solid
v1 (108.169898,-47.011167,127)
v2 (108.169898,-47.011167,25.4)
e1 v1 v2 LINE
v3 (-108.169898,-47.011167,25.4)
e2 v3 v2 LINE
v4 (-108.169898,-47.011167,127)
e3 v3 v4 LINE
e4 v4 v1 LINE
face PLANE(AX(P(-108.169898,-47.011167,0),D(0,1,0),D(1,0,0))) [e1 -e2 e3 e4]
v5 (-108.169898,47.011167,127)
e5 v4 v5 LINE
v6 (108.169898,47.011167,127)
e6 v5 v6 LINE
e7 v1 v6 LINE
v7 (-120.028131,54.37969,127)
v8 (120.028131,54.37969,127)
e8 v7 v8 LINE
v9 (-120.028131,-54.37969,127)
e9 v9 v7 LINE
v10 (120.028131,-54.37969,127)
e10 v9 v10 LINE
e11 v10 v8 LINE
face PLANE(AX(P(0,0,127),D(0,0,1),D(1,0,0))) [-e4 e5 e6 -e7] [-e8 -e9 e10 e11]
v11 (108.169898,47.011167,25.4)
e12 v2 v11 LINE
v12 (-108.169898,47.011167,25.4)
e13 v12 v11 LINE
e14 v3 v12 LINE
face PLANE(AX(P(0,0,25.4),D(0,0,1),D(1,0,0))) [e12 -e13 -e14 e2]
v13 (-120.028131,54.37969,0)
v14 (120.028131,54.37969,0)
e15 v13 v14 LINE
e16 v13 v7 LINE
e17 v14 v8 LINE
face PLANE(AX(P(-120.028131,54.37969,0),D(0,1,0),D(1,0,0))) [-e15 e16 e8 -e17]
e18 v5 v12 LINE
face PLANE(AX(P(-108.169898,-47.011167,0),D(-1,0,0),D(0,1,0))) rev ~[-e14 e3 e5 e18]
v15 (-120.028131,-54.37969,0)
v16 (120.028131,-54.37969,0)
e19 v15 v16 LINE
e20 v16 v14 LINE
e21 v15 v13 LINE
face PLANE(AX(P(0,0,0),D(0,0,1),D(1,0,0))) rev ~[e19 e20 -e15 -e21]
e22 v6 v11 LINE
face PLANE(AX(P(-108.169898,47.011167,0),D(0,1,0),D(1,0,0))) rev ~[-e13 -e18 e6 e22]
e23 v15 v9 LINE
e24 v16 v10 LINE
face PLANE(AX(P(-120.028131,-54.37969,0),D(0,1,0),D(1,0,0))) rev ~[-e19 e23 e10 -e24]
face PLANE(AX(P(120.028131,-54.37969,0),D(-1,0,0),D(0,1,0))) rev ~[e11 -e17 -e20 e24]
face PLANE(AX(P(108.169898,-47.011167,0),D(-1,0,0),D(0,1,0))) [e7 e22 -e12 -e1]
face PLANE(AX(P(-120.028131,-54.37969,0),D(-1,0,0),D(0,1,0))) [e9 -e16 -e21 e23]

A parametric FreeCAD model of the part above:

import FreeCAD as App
import Part
import Sketcher
from FreeCAD import Vector
Q = App.Units.Quantity

doc = App.newDocument("Part")
body = doc.addObject("PartDesign::Body", "Body")

# Sketch on XY plane
sketch1 = doc.addObject("Sketcher::SketchObject", "Sketch")
body.addObject(sketch1)
sketch1.AttachmentSupport = (doc.XY_Plane, [""])
sketch1.MapMode = "FlatFace"
sketch1.addGeometry([
    Part.LineSegment(Vector(-108.169898, 47.011167, 0), Vector(-108.169898, -47.011167, 0)),
    Part.LineSegment(Vector(-108.169898, -47.011167, 0), Vector(108.169898, -47.011167, 0)),
    Part.LineSegment(Vector(108.169898, -47.011167, 0), Vector(108.169898, 47.011167, 0)),
    Part.LineSegment(Vector(108.169898, 47.011167, 0), Vector(-108.169898, 47.011167, 0)),
], False)
sketch1.addConstraint([
    Sketcher.Constraint("Coincident", 0, 2, 1, 1),
    Sketcher.Constraint("Coincident", 1, 2, 2, 1),
    Sketcher.Constraint("Coincident", 2, 2, 3, 1),
    Sketcher.Constraint("Coincident", 3, 2, 0, 1),
    Sketcher.Constraint("Vertical", 0),
    Sketcher.Constraint("Horizontal", 1),
    Sketcher.Constraint("Vertical", 2),
    Sketcher.Constraint("Horizontal", 3),
    Sketcher.Constraint("Symmetric", 0, 2, 2, 2, -1, 1),
    Sketcher.Constraint("DistanceX", 0, 2, -1, 1, 108.169898),
    Sketcher.Constraint("DistanceY", 0, 2, 0, 1, 94.022334),
])
pad1 = doc.addObject("PartDesign::Pad", "Pad")
body.addObject(pad1)
pad1.Profile = sketch1
pad1.Length = Q("1 in")

# Sketch on XY plane
sketch2 = doc.addObject("Sketcher::SketchObject", "Sketch001")
body.addObject(sketch2)
sketch2.AttachmentSupport = (doc.XY_Plane, [""])
sketch2.MapMode = "FlatFace"
sketch2.addGeometry([
    Part.LineSegment(Vector(-115.593374, 51.137537, 0), Vector(-115.593374, -51.137537, 0)),  # 0
    Part.LineSegment(Vector(-115.593374, -51.137537, 0), Vector(115.593374, -51.137537, 0)),  # 1
    Part.LineSegment(Vector(115.593374, -51.137537, 0), Vector(115.593374, 51.137537, 0)),  # 2
    Part.LineSegment(Vector(115.593374, 51.137537, 0), Vector(-115.593374, 51.137537, 0)),  # 3
    Part.LineSegment(Vector(108.169898, -47.011167, 0), Vector(-108.169898, -47.011167, 0)),  # 4
    Part.LineSegment(Vector(-108.169898, -47.011167, 0), Vector(-108.169898, 47.011167, 0)),  # 5
    Part.LineSegment(Vector(-108.169898, 47.011167, 0), Vector(108.169898, 47.011167, 0)),  # 6
    Part.LineSegment(Vector(108.169898, 47.011167, 0), Vector(108.169898, -47.011167, 0)),  # 7
], False)
sketch2.addConstraint([
    Sketcher.Constraint("Coincident", 0, 2, 1, 1),
    Sketcher.Constraint("Coincident", 1, 2, 2, 1),
    Sketcher.Constraint("Coincident", 2, 2, 3, 1),
    Sketcher.Constraint("Coincident", 3, 2, 0, 1),
    Sketcher.Constraint("Coincident", 4, 2, 5, 1),
    Sketcher.Constraint("Coincident", 5, 2, 6, 1),
    Sketcher.Constraint("Coincident", 6, 2, 7, 1),
    Sketcher.Constraint("Coincident", 7, 2, 4, 1),
    Sketcher.Constraint("Vertical", 0),
    Sketcher.Constraint("Horizontal", 1),
    Sketcher.Constraint("Vertical", 2),
    Sketcher.Constraint("Horizontal", 3),
    Sketcher.Constraint("Horizontal", 4),
    Sketcher.Constraint("Vertical", 5),
    Sketcher.Constraint("Horizontal", 6),
    Sketcher.Constraint("Vertical", 7),
    Sketcher.Constraint("Symmetric", 0, 2, 2, 2, -1, 1),
    Sketcher.Constraint("Symmetric", 4, 2, 6, 2, -1, 1),
    Sketcher.Constraint("DistanceX", 1, 1, 1, 2, 231.186748),
    Sketcher.Constraint("DistanceX", 4, 2, -1, 1, 108.169898),
    Sketcher.Constraint("DistanceY", 0, 2, 0, 1, 102.275074),
    Sketcher.Constraint("DistanceY", 5, 1, 5, 2, 94.022334),
])
pad2 = doc.addObject("PartDesign::Pad", "Pad001")
body.addObject(pad2)
pad2.Profile = sketch2
pad2.Length = Q("2 in")

# Sketch on XY plane
sketch3 = doc.addObject("Sketcher::SketchObject", "Sketch002")
body.addObject(sketch3)
sketch3.AttachmentSupport = (doc.XY_Plane, [""])
sketch3.MapMode = "FlatFace"
sketch3.addGeometry([
    Part.LineSegment(Vector(-120.028131, 54.37969, 0), Vector(-120.028131, -54.37969, 0)),  # 0
    Part.LineSegment(Vector(-120.028131, -54.37969, 0), Vector(120.028131, -54.37969, 0)),  # 1
    Part.LineSegment(Vector(120.028131, -54.37969, 0), Vector(120.028131, 54.37969, 0)),  # 2
    Part.LineSegment(Vector(120.028131, 54.37969, 0), Vector(-120.028131, 54.37969, 0)),  # 3
    Part.LineSegment(Vector(108.169898, -47.011167, 0), Vector(-108.169898, -47.011167, 0)),  # 4
    Part.LineSegment(Vector(-108.169898, -47.011167, 0), Vector(-108.169898, 47.011167, 0)),  # 5
    Part.LineSegment(Vector(-108.169898, 47.011167, 0), Vector(108.169898, 47.011167, 0)),  # 6
    Part.LineSegment(Vector(108.169898, 47.011167, 0), Vector(108.169898, -47.011167, 0)),  # 7
], False)
sketch3.addConstraint([
    Sketcher.Constraint("Coincident", 0, 2, 1, 1),
    Sketcher.Constraint("Coincident", 1, 2, 2, 1),
    Sketcher.Constraint("Coincident", 2, 2, 3, 1),
    Sketcher.Constraint("Coincident", 3, 2, 0, 1),
    Sketcher.Constraint("Coincident", 4, 2, 5, 1),
    Sketcher.Constraint("Coincident", 5, 2, 6, 1),
    Sketcher.Constraint("Coincident", 6, 2, 7, 1),
    Sketcher.Constraint("Coincident", 7, 2, 4, 1),
    Sketcher.Constraint("Vertical", 0),
    Sketcher.Constraint("Horizontal", 1),
    Sketcher.Constraint("Vertical", 2),
    Sketcher.Constraint("Horizontal", 3),
    Sketcher.Constraint("Horizontal", 4),
    Sketcher.Constraint("Vertical", 5),
    Sketcher.Constraint("Horizontal", 6),
    Sketcher.Constraint("Vertical", 7),
    Sketcher.Constraint("Symmetric", 0, 2, 2, 2, -1, 1),
    Sketcher.Constraint("Symmetric", 4, 2, 6, 2, -1, 1),
    Sketcher.Constraint("DistanceX", 1, 1, 1, 2, 240.056262),
    Sketcher.Constraint("DistanceY", 0, 2, 0, 1, 108.75938),
    Sketcher.Constraint("DistanceX", 4, 2, -1, 1, 108.169898),
    Sketcher.Constraint("DistanceY", 5, 1, 5, 2, 94.022334),
])
pad3 = doc.addObject("PartDesign::Pad", "Pad002")
body.addObject(pad3)
pad3.Profile = sketch3
pad3.Length = Q("5 in")

doc.recompute()
